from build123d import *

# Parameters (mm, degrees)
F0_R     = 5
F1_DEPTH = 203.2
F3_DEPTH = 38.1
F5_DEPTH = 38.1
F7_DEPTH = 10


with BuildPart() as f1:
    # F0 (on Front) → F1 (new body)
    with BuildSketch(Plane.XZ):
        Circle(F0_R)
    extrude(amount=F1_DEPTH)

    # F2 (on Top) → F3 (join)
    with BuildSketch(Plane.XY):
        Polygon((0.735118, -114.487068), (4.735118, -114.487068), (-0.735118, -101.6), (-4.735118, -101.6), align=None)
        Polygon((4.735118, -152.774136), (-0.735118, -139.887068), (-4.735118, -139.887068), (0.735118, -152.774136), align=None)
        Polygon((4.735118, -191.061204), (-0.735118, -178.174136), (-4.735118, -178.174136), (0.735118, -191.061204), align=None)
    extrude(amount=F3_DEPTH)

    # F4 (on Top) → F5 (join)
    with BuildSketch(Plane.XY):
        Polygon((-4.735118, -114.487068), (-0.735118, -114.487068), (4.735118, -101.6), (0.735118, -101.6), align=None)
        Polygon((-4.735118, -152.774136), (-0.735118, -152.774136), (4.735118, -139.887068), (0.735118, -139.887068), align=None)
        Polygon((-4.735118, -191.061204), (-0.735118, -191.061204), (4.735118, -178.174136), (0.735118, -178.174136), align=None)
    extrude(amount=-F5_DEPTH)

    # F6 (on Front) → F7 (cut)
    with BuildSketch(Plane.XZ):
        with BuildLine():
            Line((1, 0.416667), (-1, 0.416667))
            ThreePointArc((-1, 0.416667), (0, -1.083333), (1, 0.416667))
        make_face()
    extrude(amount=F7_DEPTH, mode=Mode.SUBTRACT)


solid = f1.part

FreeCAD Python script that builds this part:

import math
import FreeCAD as App
import Part
import Sketcher
from FreeCAD import Vector
Q = App.Units.Quantity


def add_polygon(sketch, points):
    """Adds a closed chain of lines whose ends are joined by coincident constraints."""
    first, n = sketch.GeometryCount, len(points)
    for a, b in zip(points, points[1:] + points[:1]):
        sketch.addGeometry(Part.LineSegment(App.Vector(*a, 0), App.Vector(*b, 0)), False)
    for i in range(n):
        sketch.addConstraint(Sketcher.Constraint("Coincident", first + i, 2, first + (i + 1) % n, 1))

doc = App.newDocument("Part")
body = doc.addObject("PartDesign::Body", "Body")

sketch1 = body.newObject("Sketcher::SketchObject", "Sketch")
sketch1.AttachmentSupport = (doc.getObject("XZ_Plane"), [""])
sketch1.MapMode = "FlatFace"
sketch1.addGeometry(Part.Circle(Vector(0, 0, 0), Vector(0, 0, 1), 5), False)
sketch1.addConstraint([
    Sketcher.Constraint("Coincident", 0, 3, -1, 1),
    Sketcher.Constraint("Diameter", 0, 10.0),
])
pad1 = body.newObject("PartDesign::Pad", "Pad")
pad1.Profile = sketch1
pad1.Length = 203.2

sketch2 = body.newObject("Sketcher::SketchObject", "Sketch001")
sketch2.AttachmentSupport = (doc.getObject("XY_Plane"), [""])
sketch2.MapMode = "FlatFace"
add_polygon(sketch2, [(0.7, -114.5), (4.7, -114.5), (-0.7, -101.6), (-4.7, -101.6)])
add_polygon(sketch2, [(4.7, -152.8), (-0.7, -139.9), (-4.7, -139.9), (0.7, -152.8)])
add_polygon(sketch2, [(4.7, -191.1), (-0.7, -178.2), (-4.7, -178.2), (0.7, -191.1)])
sketch2.addConstraint([
    Sketcher.Constraint("Horizontal", 0),
    Sketcher.Constraint("Horizontal", 2),
    Sketcher.Constraint("Horizontal", 5),
    Sketcher.Constraint("Horizontal", 7),
    Sketcher.Constraint("Horizontal", 9),
    Sketcher.Constraint("Horizontal", 11),
    Sketcher.Constraint("Parallel", 1, 3),
    Sketcher.Constraint("Parallel", 3, 4),
    Sketcher.Constraint("Parallel", 4, 6),
    Sketcher.Constraint("Parallel", 6, 8),
    Sketcher.Constraint("Parallel", 8, 10),
    Sketcher.Constraint("Vertical", 1, 2, 4, 2),
    Sketcher.Constraint("Vertical", 2, 2, 5, 2),
    Sketcher.Constraint("Vertical", 3, 2, 6, 2),
    Sketcher.Constraint("Vertical", 4, 2, 8, 2),
    Sketcher.Constraint("Vertical", 5, 2, 9, 2),
    Sketcher.Constraint("Vertical", 6, 2, 10, 2),
    Sketcher.Constraint("DistanceX", 0, 1, 0, 2, 4.0),
    Sketcher.Constraint("Angle", 1, Q("113.000001 deg")),
    Sketcher.Constraint("Distance", 1, 14.0),
    Sketcher.Constraint("DistanceY", 1, 2, -1, 1, 101.6),
    Sketcher.Constraint("DistanceY", 4, 2, 3, 2, 25.4),
    Sketcher.Constraint("DistanceY", 8, 2, 6, 2, 25.4),
    Sketcher.Constraint("DistanceX", 1, 2, -1, 1, 0.735118),
])
pad2 = body.newObject("PartDesign::Pad", "Pad001")
pad2.Profile = sketch2
pad2.Length = 38.1

sketch3 = body.newObject("Sketcher::SketchObject", "Sketch002")
sketch3.AttachmentSupport = (doc.getObject("XY_Plane"), [""])
sketch3.MapMode = "FlatFace"
add_polygon(sketch3, [(-4.7, -114.5), (-0.7, -114.5), (4.7, -101.6), (0.7, -101.6)])
add_polygon(sketch3, [(-4.7, -152.8), (-0.7, -152.8), (4.7, -139.9), (0.7, -139.9)])
add_polygon(sketch3, [(-4.7, -191.1), (-0.7, -191.1), (4.7, -178.2), (0.7, -178.2)])
sketch3.addConstraint([
    Sketcher.Constraint("Horizontal", 0),
    Sketcher.Constraint("Horizontal", 2),
    Sketcher.Constraint("Horizontal", 4),
    Sketcher.Constraint("Horizontal", 6),
    Sketcher.Constraint("Horizontal", 8),
    Sketcher.Constraint("Horizontal", 10),
    Sketcher.Constraint("Parallel", 1, 3),
    Sketcher.Constraint("Parallel", 3, 5),
    Sketcher.Constraint("Parallel", 5, 7),
    Sketcher.Constraint("Parallel", 7, 9),
    Sketcher.Constraint("Parallel", 9, 11),
    Sketcher.Constraint("Vertical", 0, 2, 4, 2),
    Sketcher.Constraint("Vertical", 1, 2, 5, 2),
    Sketcher.Constraint("Vertical", 2, 2, 6, 2),
    Sketcher.Constraint("Vertical", 4, 2, 8, 2),
    Sketcher.Constraint("Vertical", 5, 2, 9, 2),
    Sketcher.Constraint("Vertical", 6, 2, 10, 2),
    Sketcher.Constraint("DistanceX", 0, 1, 0, 2, 4.0),
    Sketcher.Constraint("Angle", 1, Q("66.999999 deg")),
    Sketcher.Constraint("Distance", 1, 14.0),
    Sketcher.Constraint("DistanceY", 1, 2, -1, 1, 101.6),
    Sketcher.Constraint("DistanceY", 5, 2, 0, 2, 25.4),
    Sketcher.Constraint("DistanceY", 9, 2, 4, 2, 25.4),
    Sketcher.Constraint("DistanceX", 0, 2, -1, 1, 0.735118),
])
pad3 = body.newObject("PartDesign::Pad", "Pad002")
pad3.Profile = sketch3
pad3.Length = 38.1
pad3.Reversed = True

sketch4 = body.newObject("Sketcher::SketchObject", "Sketch003")
sketch4.AttachmentSupport = (doc.getObject("XZ_Plane"), [""])
sketch4.MapMode = "FlatFace"
sketch4.addGeometry([
    Part.LineSegment(Vector(1, 0.4, 0), Vector(-1, 0.4, 0)),
    Part.ArcOfCircle(Part.Circle(Vector(0, 0, 0), Vector(0, 0, 1), 1.1), math.radians(157), math.radians(383)),
], False)
sketch4.addConstraint([
    Sketcher.Constraint("Coincident", 0, 1, 1, 2),
    Sketcher.Constraint("Coincident", 1, 1, 0, 2),
    Sketcher.Constraint("Horizontal", 0),
    Sketcher.Constraint("Coincident", 1, 3, -1, 1),
    Sketcher.Constraint("DistanceX", 0, 2, 0, 1, 2.0),
    Sketcher.Constraint("Radius", 1, 1.083333),
])
pocket1 = body.newObject("PartDesign::Pocket", "Pocket")
pocket1.Profile = sketch4
pocket1.Length = 10
pocket1.Reversed = True

doc.recompute()
